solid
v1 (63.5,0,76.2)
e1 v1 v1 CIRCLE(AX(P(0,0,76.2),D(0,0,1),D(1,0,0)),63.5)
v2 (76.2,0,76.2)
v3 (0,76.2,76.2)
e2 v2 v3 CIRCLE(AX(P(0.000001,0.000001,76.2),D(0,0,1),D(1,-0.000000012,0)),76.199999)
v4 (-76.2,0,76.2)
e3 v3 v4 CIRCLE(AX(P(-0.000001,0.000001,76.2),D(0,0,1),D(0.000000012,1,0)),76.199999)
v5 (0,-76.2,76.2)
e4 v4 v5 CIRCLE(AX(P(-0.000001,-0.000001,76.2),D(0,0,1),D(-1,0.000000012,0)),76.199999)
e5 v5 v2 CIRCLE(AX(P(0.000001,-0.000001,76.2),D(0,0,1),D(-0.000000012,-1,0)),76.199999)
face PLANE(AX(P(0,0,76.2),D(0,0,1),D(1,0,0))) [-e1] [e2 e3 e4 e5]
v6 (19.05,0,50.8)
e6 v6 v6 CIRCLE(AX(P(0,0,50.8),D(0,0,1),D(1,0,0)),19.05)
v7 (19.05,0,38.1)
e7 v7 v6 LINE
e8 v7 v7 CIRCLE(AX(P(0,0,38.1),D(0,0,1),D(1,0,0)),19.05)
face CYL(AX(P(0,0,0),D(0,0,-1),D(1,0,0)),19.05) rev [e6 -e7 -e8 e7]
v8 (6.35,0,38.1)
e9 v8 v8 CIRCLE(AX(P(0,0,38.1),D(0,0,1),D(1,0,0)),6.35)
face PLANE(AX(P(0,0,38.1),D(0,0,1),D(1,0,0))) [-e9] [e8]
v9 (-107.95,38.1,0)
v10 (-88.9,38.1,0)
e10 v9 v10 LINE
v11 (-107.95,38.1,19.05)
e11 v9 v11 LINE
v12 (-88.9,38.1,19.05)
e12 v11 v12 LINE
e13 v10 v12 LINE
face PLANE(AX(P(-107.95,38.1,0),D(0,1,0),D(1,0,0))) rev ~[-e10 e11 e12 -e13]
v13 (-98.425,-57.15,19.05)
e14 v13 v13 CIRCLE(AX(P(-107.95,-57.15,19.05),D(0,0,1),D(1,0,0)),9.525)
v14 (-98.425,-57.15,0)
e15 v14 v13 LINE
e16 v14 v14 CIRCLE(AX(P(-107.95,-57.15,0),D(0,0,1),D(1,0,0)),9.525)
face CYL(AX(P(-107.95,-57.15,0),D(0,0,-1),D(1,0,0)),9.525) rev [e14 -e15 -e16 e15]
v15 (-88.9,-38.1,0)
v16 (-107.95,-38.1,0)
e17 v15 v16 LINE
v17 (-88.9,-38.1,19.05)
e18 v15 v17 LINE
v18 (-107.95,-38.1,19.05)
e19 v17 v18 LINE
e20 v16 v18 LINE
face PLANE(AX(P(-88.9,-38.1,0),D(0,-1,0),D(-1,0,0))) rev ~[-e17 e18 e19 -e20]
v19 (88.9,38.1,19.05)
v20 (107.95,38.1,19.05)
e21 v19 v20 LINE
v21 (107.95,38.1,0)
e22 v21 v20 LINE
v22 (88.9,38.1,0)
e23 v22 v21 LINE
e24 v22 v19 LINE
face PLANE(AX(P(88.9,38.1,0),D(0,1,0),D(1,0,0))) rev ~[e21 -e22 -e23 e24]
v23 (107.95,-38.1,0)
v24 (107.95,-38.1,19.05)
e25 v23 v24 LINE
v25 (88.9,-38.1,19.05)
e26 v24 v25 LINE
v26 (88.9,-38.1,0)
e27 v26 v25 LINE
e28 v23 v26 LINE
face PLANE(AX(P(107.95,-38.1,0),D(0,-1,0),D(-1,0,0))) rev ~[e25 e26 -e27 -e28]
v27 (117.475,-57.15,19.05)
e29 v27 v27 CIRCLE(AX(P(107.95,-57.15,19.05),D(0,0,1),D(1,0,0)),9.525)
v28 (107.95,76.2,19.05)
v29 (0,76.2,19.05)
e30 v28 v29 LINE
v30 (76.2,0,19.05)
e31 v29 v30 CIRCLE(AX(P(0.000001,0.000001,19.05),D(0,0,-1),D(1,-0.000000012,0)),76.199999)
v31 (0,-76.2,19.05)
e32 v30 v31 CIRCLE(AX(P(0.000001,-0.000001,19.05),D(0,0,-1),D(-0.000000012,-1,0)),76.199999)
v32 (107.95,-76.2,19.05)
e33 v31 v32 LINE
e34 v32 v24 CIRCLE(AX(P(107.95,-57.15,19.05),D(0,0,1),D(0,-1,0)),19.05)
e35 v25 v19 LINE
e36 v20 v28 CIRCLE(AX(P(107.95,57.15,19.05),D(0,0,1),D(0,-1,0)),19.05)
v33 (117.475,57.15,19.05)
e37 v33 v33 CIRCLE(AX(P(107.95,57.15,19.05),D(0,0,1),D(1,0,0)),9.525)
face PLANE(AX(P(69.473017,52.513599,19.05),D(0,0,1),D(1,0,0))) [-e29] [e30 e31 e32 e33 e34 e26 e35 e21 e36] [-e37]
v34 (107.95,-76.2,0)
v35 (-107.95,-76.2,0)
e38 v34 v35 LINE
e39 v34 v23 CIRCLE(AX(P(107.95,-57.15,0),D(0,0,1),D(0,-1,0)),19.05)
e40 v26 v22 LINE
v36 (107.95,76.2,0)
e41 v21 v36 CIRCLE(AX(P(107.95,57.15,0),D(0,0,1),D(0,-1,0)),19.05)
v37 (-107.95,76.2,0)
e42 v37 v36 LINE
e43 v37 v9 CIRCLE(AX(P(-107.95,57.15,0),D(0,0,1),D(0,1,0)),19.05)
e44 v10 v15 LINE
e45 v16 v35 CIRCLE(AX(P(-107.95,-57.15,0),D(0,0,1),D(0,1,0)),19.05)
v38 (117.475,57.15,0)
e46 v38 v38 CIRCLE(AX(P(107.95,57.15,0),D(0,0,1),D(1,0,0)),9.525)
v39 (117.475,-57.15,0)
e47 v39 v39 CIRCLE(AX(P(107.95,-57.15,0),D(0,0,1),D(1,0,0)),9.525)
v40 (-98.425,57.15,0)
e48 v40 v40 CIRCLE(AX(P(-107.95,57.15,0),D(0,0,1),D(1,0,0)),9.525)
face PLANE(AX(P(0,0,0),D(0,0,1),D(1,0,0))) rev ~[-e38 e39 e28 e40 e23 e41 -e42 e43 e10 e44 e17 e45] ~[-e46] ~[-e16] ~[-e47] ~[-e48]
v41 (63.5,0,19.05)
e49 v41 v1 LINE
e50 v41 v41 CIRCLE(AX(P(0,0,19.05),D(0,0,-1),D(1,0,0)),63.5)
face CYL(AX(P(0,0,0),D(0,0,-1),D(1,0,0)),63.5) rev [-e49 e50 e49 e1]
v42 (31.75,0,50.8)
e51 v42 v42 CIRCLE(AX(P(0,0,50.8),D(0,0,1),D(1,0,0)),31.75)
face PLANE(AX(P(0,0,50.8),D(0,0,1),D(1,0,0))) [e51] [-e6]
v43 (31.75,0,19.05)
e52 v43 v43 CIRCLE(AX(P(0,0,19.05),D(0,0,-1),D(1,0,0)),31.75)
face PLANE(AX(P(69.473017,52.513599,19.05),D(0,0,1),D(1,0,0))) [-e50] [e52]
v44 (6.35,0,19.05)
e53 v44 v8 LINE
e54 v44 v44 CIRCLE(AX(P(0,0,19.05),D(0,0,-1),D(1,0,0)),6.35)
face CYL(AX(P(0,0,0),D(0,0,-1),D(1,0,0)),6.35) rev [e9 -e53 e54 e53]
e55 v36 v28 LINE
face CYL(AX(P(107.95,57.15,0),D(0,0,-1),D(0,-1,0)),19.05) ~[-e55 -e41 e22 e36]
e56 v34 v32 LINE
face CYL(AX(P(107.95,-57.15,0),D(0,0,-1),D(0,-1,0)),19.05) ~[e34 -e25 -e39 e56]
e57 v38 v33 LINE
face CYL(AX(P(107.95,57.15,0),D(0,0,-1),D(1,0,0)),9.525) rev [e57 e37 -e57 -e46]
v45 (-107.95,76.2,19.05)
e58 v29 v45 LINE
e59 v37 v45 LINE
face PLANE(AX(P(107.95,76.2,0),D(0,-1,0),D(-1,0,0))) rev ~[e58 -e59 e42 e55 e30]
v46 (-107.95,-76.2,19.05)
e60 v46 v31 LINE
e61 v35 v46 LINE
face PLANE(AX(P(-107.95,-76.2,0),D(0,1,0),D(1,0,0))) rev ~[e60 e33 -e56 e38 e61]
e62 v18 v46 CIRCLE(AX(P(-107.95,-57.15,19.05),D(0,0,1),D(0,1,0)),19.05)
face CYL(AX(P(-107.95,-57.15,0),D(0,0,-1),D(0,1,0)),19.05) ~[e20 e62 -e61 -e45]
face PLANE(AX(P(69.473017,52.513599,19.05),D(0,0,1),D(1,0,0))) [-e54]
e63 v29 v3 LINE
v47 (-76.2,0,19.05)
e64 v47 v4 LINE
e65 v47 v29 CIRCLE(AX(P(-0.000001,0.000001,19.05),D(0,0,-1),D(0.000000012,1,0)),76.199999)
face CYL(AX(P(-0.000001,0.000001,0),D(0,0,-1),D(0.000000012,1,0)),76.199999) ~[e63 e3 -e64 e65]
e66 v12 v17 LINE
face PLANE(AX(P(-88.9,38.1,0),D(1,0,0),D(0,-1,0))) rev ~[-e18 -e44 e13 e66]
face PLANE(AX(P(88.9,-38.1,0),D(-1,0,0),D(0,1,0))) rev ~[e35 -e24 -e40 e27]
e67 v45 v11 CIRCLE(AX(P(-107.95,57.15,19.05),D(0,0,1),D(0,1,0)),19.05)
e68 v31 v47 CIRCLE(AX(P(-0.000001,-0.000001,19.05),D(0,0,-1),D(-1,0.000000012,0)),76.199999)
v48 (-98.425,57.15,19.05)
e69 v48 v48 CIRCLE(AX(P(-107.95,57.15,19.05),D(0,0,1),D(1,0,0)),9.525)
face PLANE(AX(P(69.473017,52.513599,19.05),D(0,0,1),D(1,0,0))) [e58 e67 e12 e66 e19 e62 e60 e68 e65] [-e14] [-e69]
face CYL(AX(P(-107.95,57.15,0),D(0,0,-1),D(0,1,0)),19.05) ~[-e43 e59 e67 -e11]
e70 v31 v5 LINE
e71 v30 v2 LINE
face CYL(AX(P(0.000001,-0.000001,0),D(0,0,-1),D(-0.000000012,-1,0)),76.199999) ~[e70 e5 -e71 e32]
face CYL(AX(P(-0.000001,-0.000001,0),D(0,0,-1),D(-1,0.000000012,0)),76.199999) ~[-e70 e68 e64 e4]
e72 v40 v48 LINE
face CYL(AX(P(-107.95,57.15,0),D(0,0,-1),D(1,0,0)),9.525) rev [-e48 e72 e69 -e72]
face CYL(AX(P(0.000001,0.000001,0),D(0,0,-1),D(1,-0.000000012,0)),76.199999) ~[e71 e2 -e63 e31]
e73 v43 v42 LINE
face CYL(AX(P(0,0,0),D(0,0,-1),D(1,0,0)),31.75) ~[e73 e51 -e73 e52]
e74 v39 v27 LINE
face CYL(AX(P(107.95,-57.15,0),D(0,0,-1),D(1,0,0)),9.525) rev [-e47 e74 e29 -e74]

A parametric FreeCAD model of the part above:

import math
import FreeCAD as App
import Part
import Sketcher
Q = App.Units.Quantity

doc = App.newDocument("Part")
body = doc.addObject("PartDesign::Body", "Body")

sketch1 = body.newObject("Sketcher::SketchObject", "Sketch")
sketch1.AttachmentSupport = (doc.getObject("XY_Plane"), [""])
sketch1.MapMode = "FlatFace"
sketch1.addGeometry([
    Part.LineSegment(App.Vector(108, 76, 0), App.Vector(-108, 76, 0)),
    Part.ArcOfCircle(Part.Circle(App.Vector(-108, 57, 0), App.Vector(0, 0, 1), 19), math.radians(90), math.radians(270)),
    Part.LineSegment(App.Vector(-108, 38, 0), App.Vector(-89, 38, 0)),
    Part.LineSegment(App.Vector(-89, 38, 0), App.Vector(-89, -38, 0)),
    Part.LineSegment(App.Vector(-89, -38, 0), App.Vector(-108, -38, 0)),
    Part.ArcOfCircle(Part.Circle(App.Vector(-108, -57, 0), App.Vector(0, 0, 1), 19), math.radians(90), math.radians(270)),
    Part.LineSegment(App.Vector(-108, -76, 0), App.Vector(108, -76, 0)),
    Part.ArcOfCircle(Part.Circle(App.Vector(108, -57, 0), App.Vector(0, 0, 1), 19), math.radians(-90), math.radians(90)),
    Part.LineSegment(App.Vector(108, -38, 0), App.Vector(89, -38, 0)),
    Part.LineSegment(App.Vector(89, -38, 0), App.Vector(89, 38, 0)),
    Part.LineSegment(App.Vector(89, 38, 0), App.Vector(108, 38, 0)),
    Part.ArcOfCircle(Part.Circle(App.Vector(108, 57, 0), App.Vector(0, 0, 1), 19), math.radians(-90), math.radians(90)),
    Part.Circle(App.Vector(-108, -57, 0), App.Vector(0, 0, 1), 10),
    Part.Circle(App.Vector(108, -57, 0), App.Vector(0, 0, 1), 10),
    Part.Circle(App.Vector(-108, 57, 0), App.Vector(0, 0, 1), 10),
    Part.Circle(App.Vector(108, 57, 0), App.Vector(0, 0, 1), 10),
], False)
sketch1.addConstraint([
    Sketcher.Constraint("Tangent", 0, 2, 1, 1),
    Sketcher.Constraint("Tangent", 1, 2, 2, 1),
    Sketcher.Constraint("Coincident", 2, 2, 3, 1),
    Sketcher.Constraint("Coincident", 3, 2, 4, 1),
    Sketcher.Constraint("Tangent", 4, 2, 5, 1),
    Sketcher.Constraint("Tangent", 5, 2, 6, 1),
    Sketcher.Constraint("Tangent", 6, 2, 7, 1),
    Sketcher.Constraint("Tangent", 7, 2, 8, 1),
    Sketcher.Constraint("Coincident", 8, 2, 9, 1),
    Sketcher.Constraint("Coincident", 9, 2, 10, 1),
    Sketcher.Constraint("Tangent", 10, 2, 11, 1),
    Sketcher.Constraint("Tangent", 11, 2, 0, 1),
    Sketcher.Constraint("Horizontal", 0),
    Sketcher.Constraint("Horizontal", 2),
    Sketcher.Constraint("Vertical", 3),
    Sketcher.Constraint("Horizontal", 4),
    Sketcher.Constraint("Horizontal", 6),
    Sketcher.Constraint("Horizontal", 8),
    Sketcher.Constraint("Vertical", 9),
    Sketcher.Constraint("Horizontal", 10),
    Sketcher.Constraint("Coincident", 12, 3, 5, 3),
    Sketcher.Constraint("Coincident", 13, 3, 7, 3),
    Sketcher.Constraint("Coincident", 14, 3, 1, 3),
    Sketcher.Constraint("Coincident", 15, 3, 11, 3),
    Sketcher.Constraint("Equal", 1, 5),
    Sketcher.Constraint("Equal", 5, 7),
    Sketcher.Constraint("Equal", 7, 11),
    Sketcher.Constraint("Equal", 12, 13),
    Sketcher.Constraint("Equal", 13, 14),
    Sketcher.Constraint("Equal", 14, 15),
    Sketcher.Constraint("Symmetric", 1, 3, 7, 3, -1, 1),
    Sketcher.Constraint("Vertical", 1, 3, 5, 3),
    Sketcher.Constraint("Vertical", 7, 3, 11, 3),
    Sketcher.Constraint("Equal", 4, 8),
    Sketcher.Constraint("Diameter", 12, Q("0.75 in")),
    Sketcher.Constraint("DistanceY", 3, 2, 3, 1, Q("3 in")),
    Sketcher.Constraint("Radius", 1, Q("0.75 in")),
    Sketcher.Constraint("DistanceX", 0, 2, 0, 1, Q("8.5 in")),
    Sketcher.Constraint("DistanceX", 2, 1, 2, 2, Q("0.75 in")),
])
pad1 = body.newObject("PartDesign::Pad", "Pad")
pad1.Profile = sketch1
pad1.Length = Q("0.75 in")

sketch2 = body.newObject("Sketcher::SketchObject", "Sketch001")
sketch2.AttachmentSupport = (doc.getObject("XY_Plane"), [""])
sketch2.MapMode = "FlatFace"
sketch2.addGeometry([
    Part.ArcOfCircle(Part.Circle(App.Vector(0, 0, 0), App.Vector(0, 0, 1), 76), math.radians(-90), math.radians(0)),
    Part.ArcOfCircle(Part.Circle(App.Vector(0, 0, 0), App.Vector(0, 0, 1), 76), math.radians(0), math.radians(90)),
    Part.ArcOfCircle(Part.Circle(App.Vector(0, 0, 0), App.Vector(0, 0, 1), 76), math.radians(90), math.radians(180)),
    Part.ArcOfCircle(Part.Circle(App.Vector(0, 0, 0), App.Vector(0, 0, 1), 76), math.radians(180), math.radians(270)),
    Part.Circle(App.Vector(0, 0, 0), App.Vector(0, 0, 1), 64),
], False)
sketch2.addConstraint([
    Sketcher.Constraint("Tangent", 0, 2, 1, 1),
    Sketcher.Constraint("Tangent", 1, 2, 2, 1),
    Sketcher.Constraint("Tangent", 2, 2, 3, 1),
    Sketcher.Constraint("Tangent", 3, 2, 0, 1),
    Sketcher.Constraint("Coincident", 0, 3, -1, 1),
    Sketcher.Constraint("Coincident", 4, 3, -1, 1),
    Sketcher.Constraint("Equal", 0, 1),
    Sketcher.Constraint("PointOnObject", 0, 2, -1),
    Sketcher.Constraint("PointOnObject", 1, 2, -2),
    Sketcher.Constraint("PointOnObject", 2, 2, -1),
    Sketcher.Constraint("PointOnObject", 3, 2, -2),
    Sketcher.Constraint("Diameter", 4, Q("5 in")),
    Sketcher.Constraint("Radius", 0, Q("3 in")),
])
pad2 = body.newObject("PartDesign::Pad", "Pad001")
pad2.Profile = sketch2
pad2.Length = Q("3 in")

sketch3 = body.newObject("Sketcher::SketchObject", "Sketch002")
sketch3.AttachmentSupport = (doc.getObject("XY_Plane"), [""])
sketch3.MapMode = "FlatFace"
sketch3.addGeometry([
    Part.Circle(App.Vector(0, 0, 0), App.Vector(0, 0, 1), 32),
    Part.Circle(App.Vector(0, 0, 0), App.Vector(0, 0, 1), 19),
], False)
sketch3.addConstraint([
    Sketcher.Constraint("Coincident", 0, 3, -1, 1),
    Sketcher.Constraint("Coincident", 1, 3, -1, 1),
    Sketcher.Constraint("Diameter", 0, Q("2.5 in")),
    Sketcher.Constraint("Diameter", 1, Q("1.5 in")),
])
pad3 = body.newObject("PartDesign::Pad", "Pad002")
pad3.Profile = sketch3
pad3.Length = Q("2 in")

sketch4 = body.newObject("Sketcher::SketchObject", "Sketch003")
sketch4.AttachmentSupport = (doc.getObject("XY_Plane"), [""])
sketch4.MapMode = "FlatFace"
sketch4.addGeometry([
    Part.Circle(App.Vector(0, 0, 0), App.Vector(0, 0, 1), 19),
    Part.Circle(App.Vector(0, 0, 0), App.Vector(0, 0, 1), 6),
], False)
sketch4.addConstraint([
    Sketcher.Constraint("Coincident", 0, 3, -1, 1),
    Sketcher.Constraint("Coincident", 1, 3, -1, 1),
    Sketcher.Constraint("Diameter", 0, Q("1.5 in")),
    Sketcher.Constraint("Diameter", 1, Q("0.5 in")),
])
pad4 = body.newObject("PartDesign::Pad", "Pad003")
pad4.Profile = sketch4
pad4.Length = Q("1.5 in")

doc.recompute()
